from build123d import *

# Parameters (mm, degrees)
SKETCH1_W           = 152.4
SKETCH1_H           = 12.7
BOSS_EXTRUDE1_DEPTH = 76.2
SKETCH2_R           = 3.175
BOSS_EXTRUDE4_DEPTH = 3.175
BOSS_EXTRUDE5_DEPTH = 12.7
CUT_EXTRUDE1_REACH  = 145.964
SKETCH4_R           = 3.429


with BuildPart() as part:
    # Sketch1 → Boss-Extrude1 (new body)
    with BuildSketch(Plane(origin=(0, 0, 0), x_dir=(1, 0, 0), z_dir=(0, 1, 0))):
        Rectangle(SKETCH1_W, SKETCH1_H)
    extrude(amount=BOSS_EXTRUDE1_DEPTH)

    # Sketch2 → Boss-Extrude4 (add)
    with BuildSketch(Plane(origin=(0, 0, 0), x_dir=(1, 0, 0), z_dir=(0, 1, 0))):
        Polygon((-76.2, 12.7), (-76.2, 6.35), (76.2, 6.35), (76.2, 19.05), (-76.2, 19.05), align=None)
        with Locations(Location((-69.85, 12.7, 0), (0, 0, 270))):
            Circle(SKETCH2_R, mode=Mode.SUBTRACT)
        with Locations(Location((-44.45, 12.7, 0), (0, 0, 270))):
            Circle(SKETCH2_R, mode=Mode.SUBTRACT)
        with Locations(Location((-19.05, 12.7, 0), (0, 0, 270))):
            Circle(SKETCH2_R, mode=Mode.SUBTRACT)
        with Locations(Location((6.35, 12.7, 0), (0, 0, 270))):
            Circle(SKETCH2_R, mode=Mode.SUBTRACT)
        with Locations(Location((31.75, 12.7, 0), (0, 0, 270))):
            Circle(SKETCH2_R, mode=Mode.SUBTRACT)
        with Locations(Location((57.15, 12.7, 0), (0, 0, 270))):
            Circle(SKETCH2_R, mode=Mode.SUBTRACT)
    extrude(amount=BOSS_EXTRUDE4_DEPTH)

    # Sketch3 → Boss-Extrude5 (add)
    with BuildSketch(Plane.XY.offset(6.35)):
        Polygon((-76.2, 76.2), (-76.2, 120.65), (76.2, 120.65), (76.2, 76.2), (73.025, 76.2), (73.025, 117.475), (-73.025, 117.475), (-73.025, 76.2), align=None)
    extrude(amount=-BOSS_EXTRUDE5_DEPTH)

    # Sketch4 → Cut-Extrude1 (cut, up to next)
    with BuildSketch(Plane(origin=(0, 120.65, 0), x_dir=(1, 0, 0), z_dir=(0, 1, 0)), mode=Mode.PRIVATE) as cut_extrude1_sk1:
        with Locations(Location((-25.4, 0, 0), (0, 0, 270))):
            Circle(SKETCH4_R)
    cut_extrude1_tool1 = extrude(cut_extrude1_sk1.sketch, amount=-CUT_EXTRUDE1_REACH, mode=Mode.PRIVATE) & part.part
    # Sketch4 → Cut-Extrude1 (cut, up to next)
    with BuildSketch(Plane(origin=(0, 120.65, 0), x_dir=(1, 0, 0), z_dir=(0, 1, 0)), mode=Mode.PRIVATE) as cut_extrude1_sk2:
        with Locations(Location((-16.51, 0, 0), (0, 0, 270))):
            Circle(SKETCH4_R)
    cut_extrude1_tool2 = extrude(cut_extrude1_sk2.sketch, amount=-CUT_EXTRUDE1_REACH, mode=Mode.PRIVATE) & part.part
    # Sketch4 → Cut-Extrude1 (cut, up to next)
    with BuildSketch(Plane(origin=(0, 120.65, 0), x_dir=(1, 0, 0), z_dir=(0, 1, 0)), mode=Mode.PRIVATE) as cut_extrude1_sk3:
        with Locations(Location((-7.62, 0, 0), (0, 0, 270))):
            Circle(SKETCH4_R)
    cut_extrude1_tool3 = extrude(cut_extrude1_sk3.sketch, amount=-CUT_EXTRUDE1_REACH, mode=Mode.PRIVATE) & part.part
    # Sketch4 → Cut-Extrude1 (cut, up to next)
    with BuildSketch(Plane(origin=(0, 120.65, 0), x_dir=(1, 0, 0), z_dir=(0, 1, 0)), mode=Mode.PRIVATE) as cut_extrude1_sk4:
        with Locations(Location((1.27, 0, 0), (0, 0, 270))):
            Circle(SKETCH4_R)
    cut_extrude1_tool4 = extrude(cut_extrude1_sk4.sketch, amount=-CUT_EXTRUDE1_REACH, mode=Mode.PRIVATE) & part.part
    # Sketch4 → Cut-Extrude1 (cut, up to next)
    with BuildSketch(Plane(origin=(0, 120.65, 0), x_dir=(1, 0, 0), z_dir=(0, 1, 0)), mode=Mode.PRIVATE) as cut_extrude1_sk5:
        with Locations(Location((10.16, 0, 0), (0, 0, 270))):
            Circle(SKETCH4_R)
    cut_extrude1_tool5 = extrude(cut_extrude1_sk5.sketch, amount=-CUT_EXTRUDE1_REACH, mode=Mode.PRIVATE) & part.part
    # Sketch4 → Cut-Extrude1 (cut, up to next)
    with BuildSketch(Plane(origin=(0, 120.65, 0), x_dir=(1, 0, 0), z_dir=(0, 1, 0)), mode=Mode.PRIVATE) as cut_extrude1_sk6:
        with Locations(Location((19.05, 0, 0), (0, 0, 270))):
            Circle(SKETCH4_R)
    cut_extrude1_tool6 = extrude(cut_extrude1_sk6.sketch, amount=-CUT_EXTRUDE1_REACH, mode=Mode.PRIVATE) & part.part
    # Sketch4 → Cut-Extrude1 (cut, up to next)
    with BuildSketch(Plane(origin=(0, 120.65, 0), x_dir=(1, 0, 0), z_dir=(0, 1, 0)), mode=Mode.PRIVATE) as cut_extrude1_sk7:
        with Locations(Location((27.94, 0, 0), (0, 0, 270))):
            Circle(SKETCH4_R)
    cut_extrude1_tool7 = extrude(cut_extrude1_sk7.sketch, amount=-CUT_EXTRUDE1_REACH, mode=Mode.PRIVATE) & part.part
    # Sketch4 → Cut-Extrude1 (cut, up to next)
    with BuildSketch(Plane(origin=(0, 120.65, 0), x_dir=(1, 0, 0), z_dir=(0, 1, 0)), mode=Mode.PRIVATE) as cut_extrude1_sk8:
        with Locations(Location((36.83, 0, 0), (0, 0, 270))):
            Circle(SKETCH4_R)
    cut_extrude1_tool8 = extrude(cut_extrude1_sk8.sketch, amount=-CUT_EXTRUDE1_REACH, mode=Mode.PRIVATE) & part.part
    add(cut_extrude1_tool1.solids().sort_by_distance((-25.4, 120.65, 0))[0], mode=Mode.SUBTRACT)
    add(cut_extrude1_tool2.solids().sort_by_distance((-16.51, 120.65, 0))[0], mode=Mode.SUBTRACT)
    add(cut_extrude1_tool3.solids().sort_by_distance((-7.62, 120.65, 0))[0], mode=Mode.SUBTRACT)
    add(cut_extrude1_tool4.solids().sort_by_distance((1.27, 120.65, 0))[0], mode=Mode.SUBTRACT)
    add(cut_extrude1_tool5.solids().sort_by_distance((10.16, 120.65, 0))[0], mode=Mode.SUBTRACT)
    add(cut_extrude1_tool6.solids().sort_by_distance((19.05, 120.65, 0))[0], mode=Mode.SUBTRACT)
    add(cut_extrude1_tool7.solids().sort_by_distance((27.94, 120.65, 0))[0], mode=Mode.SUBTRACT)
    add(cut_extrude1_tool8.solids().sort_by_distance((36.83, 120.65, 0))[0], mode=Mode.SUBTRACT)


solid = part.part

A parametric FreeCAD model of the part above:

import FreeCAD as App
import Part
import Sketcher
from FreeCAD import Vector
Q = App.Units.Quantity


def add_polygon(sketch, points):
    """Adds a closed chain of lines whose ends are joined by coincident constraints."""
    first, n = sketch.GeometryCount, len(points)
    for a, b in zip(points, points[1:] + points[:1]):
        sketch.addGeometry(Part.LineSegment(App.Vector(*a, 0), App.Vector(*b, 0)), False)
    for i in range(n):
        sketch.addConstraint(Sketcher.Constraint("Coincident", first + i, 2, first + (i + 1) % n, 1))

doc = App.newDocument("Part")
body = doc.addObject("PartDesign::Body", "Body")

sketch1 = body.newObject("Sketcher::SketchObject", "Sketch")
sketch1.AttachmentSupport = (doc.getObject("XZ_Plane"), [""])
sketch1.MapMode = "FlatFace"
add_polygon(sketch1, [(-76, -6), (-76, 6), (76, 6), (76, -6)])
sketch1.addConstraint([
    Sketcher.Constraint("Vertical", 0),
    Sketcher.Constraint("Horizontal", 1),
    Sketcher.Constraint("Vertical", 2),
    Sketcher.Constraint("Horizontal", 3),
    Sketcher.Constraint("Symmetric", 0, 2, 2, 2, -1, 1),
    Sketcher.Constraint("DistanceX", 1, 1, 1, 2, Q("6 in")),
    Sketcher.Constraint("DistanceY", 0, 1, 0, 2, Q("0.5 in")),
])
pad1 = body.newObject("PartDesign::Pad", "Pad")
pad1.Profile = sketch1
pad1.Length = Q("3 in")
pad1.Reversed = True

sketch2 = body.newObject("Sketcher::SketchObject", "Sketch001")
sketch2.AttachmentSupport = (doc.getObject("XZ_Plane"), [""])
sketch2.MapMode = "FlatFace"
add_polygon(sketch2, [(-76.2, -6.3), (76.2, -6.3), (76.2, -19.1), (-76.2, -19.1)])
sketch2.addGeometry(Part.Circle(Vector(-69.8, -12.7, 0), Vector(0, 0, 1), 3.2), False)
sketch2.addGeometry(Part.Circle(Vector(-44.5, -12.7, 0), Vector(0, 0, 1), 3.2), False)
sketch2.addGeometry(Part.Circle(Vector(-19.1, -12.7, 0), Vector(0, 0, 1), 3.2), False)
sketch2.addGeometry(Part.Circle(Vector(6.3, -12.7, 0), Vector(0, 0, 1), 3.2), False)
sketch2.addGeometry(Part.Circle(Vector(31.8, -12.7, 0), Vector(0, 0, 1), 3.2), False)
sketch2.addGeometry(Part.Circle(Vector(57.1, -12.7, 0), Vector(0, 0, 1), 3.2), False)
sketch2.addConstraint([
    Sketcher.Constraint("Horizontal", 0),
    Sketcher.Constraint("Vertical", 1),
    Sketcher.Constraint("Horizontal", 2),
    Sketcher.Constraint("Vertical", 3),
    Sketcher.Constraint("Equal", 4, 5),
    Sketcher.Constraint("Equal", 5, 6),
    Sketcher.Constraint("Equal", 6, 7),
    Sketcher.Constraint("Equal", 7, 8),
    Sketcher.Constraint("Equal", 8, 9),
    Sketcher.Constraint("Horizontal", 4, 3, 5, 3),
    Sketcher.Constraint("Horizontal", 5, 3, 6, 3),
    Sketcher.Constraint("Horizontal", 6, 3, 7, 3),
    Sketcher.Constraint("Horizontal", 7, 3, 8, 3),
    Sketcher.Constraint("Horizontal", 8, 3, 9, 3),
    Sketcher.Constraint("Diameter", 4, Q("0.25 in")),
    Sketcher.Constraint("DistanceX", 0, 1, 0, 2, Q("6 in")),
    Sketcher.Constraint("DistanceY", 1, 2, 1, 1, Q("0.5 in")),
    Sketcher.Constraint("DistanceX", -1, 1, 0, 2, Q("3 in")),
    Sketcher.Constraint("DistanceX", 4, 3, 5, 3, Q("1 in")),
    Sketcher.Constraint("DistanceX", 5, 3, 6, 3, Q("1 in")),
    Sketcher.Constraint("DistanceX", 6, 3, 7, 3, Q("1 in")),
    Sketcher.Constraint("DistanceX", 7, 3, 8, 3, Q("1 in")),
    Sketcher.Constraint("DistanceX", 8, 3, 9, 3, Q("1 in")),
    Sketcher.Constraint("DistanceY", 4, 3, -1, 1, Q("0.5 in")),
    Sketcher.Constraint("DistanceX", 4, 3, -1, 1, Q("2.75 in")),
    Sketcher.Constraint("DistanceY", 0, 2, -1, 1, Q("0.25 in")),
])
pad2 = body.newObject("PartDesign::Pad", "Pad001")
pad2.Profile = sketch2
pad2.Length = Q("0.125 in")
pad2.Reversed = True

sketch3 = body.newObject("Sketcher::SketchObject", "Sketch002")
sketch3.AttachmentSupport = (doc.getObject("XY_Plane"), [""])
sketch3.MapMode = "FlatFace"
sketch3.AttachmentOffset = App.Placement(Vector(0, 0, 0.25 * 25.4), App.Rotation())
add_polygon(sketch3, [(-76.2, 120.7), (-76.2, 76.2), (-73, 76.2), (-73, 117.5), (73, 117.5), (73, 76.2), (76.2, 76.2), (76.2, 120.7)])
sketch3.addConstraint([
    Sketcher.Constraint("Vertical", 0),
    Sketcher.Constraint("Horizontal", 1),
    Sketcher.Constraint("Vertical", 2),
    Sketcher.Constraint("Horizontal", 3),
    Sketcher.Constraint("Vertical", 4),
    Sketcher.Constraint("Horizontal", 5),
    Sketcher.Constraint("Vertical", 6),
    Sketcher.Constraint("Horizontal", 7),
    Sketcher.Constraint("Symmetric", 1, 2, 4, 2, -2),
    Sketcher.Constraint("Equal", 1, 5),
    Sketcher.Constraint("DistanceX", 7, 2, 7, 1, Q("6 in")),
    Sketcher.Constraint("DistanceY", -1, 1, 0, 2, Q("3 in")),
    Sketcher.Constraint("DistanceX", 3, 1, 3, 2, Q("5.75 in")),
    Sketcher.Constraint("DistanceY", 0, 2, 0, 1, Q("1.75 in")),
    Sketcher.Constraint("DistanceY", 2, 1, 2, 2, Q("1.625 in")),
])
pad3 = body.newObject("PartDesign::Pad", "Pad002")
pad3.Profile = sketch3
pad3.Length = Q("0.5 in")
pad3.Reversed = True

sketch4 = body.newObject("Sketcher::SketchObject", "Sketch003")
sketch4.AttachmentSupport = (doc.getObject("XZ_Plane"), [""])
sketch4.MapMode = "FlatFace"
sketch4.AttachmentOffset = App.Placement(Vector(0, 0, -4.75 * 25.4), App.Rotation())
sketch4.addGeometry(Part.Circle(Vector(-25.4, 0, 0), Vector(0, 0, 1), 3.4), False)
sketch4.addConstraint([
    Sketcher.Constraint("PointOnObject", 0, 3, -1),
    Sketcher.Constraint("Diameter", 0, Q("0.27 in")),
    Sketcher.Constraint("DistanceX", 0, 3, -1, 1, Q("1 in")),
])
pocket1 = body.newObject("PartDesign::Pocket", "Pocket")
pocket1.Profile = sketch4
pocket1.Type = "UpToFirst"
pocket1.Reversed = True

sketch5 = body.newObject("Sketcher::SketchObject", "Sketch004")
sketch5.AttachmentSupport = (doc.getObject("XZ_Plane"), [""])
sketch5.MapMode = "FlatFace"
sketch5.AttachmentOffset = App.Placement(Vector(0, 0, -4.75 * 25.4), App.Rotation())
sketch5.addGeometry(Part.Circle(Vector(-16.5, 0, 0), Vector(0, 0, 1), 3.4), False)
sketch5.addConstraint([
    Sketcher.Constraint("PointOnObject", 0, 3, -1),
    Sketcher.Constraint("Diameter", 0, Q("0.27 in")),
    Sketcher.Constraint("DistanceX", 0, 3, -1, 1, Q("0.65 in")),
])
pocket2 = body.newObject("PartDesign::Pocket", "Pocket001")
pocket2.Profile = sketch5
pocket2.Type = "UpToFirst"
pocket2.Reversed = True

sketch6 = body.newObject("Sketcher::SketchObject", "Sketch005")
sketch6.AttachmentSupport = (doc.getObject("XZ_Plane"), [""])
sketch6.MapMode = "FlatFace"
sketch6.AttachmentOffset = App.Placement(Vector(0, 0, -4.75 * 25.4), App.Rotation())
sketch6.addGeometry(Part.Circle(Vector(-7.6, 0, 0), Vector(0, 0, 1), 3.4), False)
sketch6.addConstraint([
    Sketcher.Constraint("PointOnObject", 0, 3, -1),
    Sketcher.Constraint("Diameter", 0, Q("0.27 in")),
    Sketcher.Constraint("DistanceX", 0, 3, -1, 1, Q("0.3 in")),
])
pocket3 = body.newObject("PartDesign::Pocket", "Pocket002")
pocket3.Profile = sketch6
pocket3.Type = "UpToFirst"
pocket3.Reversed = True

sketch7 = body.newObject("Sketcher::SketchObject", "Sketch006")
sketch7.AttachmentSupport = (doc.getObject("XZ_Plane"), [""])
sketch7.MapMode = "FlatFace"
sketch7.AttachmentOffset = App.Placement(Vector(0, 0, -4.75 * 25.4), App.Rotation())
sketch7.addGeometry(Part.Circle(Vector(1.3, 0, 0), Vector(0, 0, 1), 3.4), False)
sketch7.addConstraint([
    Sketcher.Constraint("PointOnObject", 0, 3, -1),
    Sketcher.Constraint("Diameter", 0, Q("0.27 in")),
    Sketcher.Constraint("DistanceX", -1, 1, 0, 3, Q("0.05 in")),
])
pocket4 = body.newObject("PartDesign::Pocket", "Pocket003")
pocket4.Profile = sketch7
pocket4.Type = "UpToFirst"
pocket4.Reversed = True

sketch8 = body.newObject("Sketcher::SketchObject", "Sketch007")
sketch8.AttachmentSupport = (doc.getObject("XZ_Plane"), [""])
sketch8.MapMode = "FlatFace"
sketch8.AttachmentOffset = App.Placement(Vector(0, 0, -4.75 * 25.4), App.Rotation())
sketch8.addGeometry(Part.Circle(Vector(10.2, 0, 0), Vector(0, 0, 1), 3.4), False)
sketch8.addConstraint([
    Sketcher.Constraint("PointOnObject", 0, 3, -1),
    Sketcher.Constraint("Diameter", 0, Q("0.27 in")),
    Sketcher.Constraint("DistanceX", -1, 1, 0, 3, Q("0.4 in")),
])
pocket5 = body.newObject("PartDesign::Pocket", "Pocket004")
pocket5.Profile = sketch8
pocket5.Type = "UpToFirst"
pocket5.Reversed = True

sketch9 = body.newObject("Sketcher::SketchObject", "Sketch008")
sketch9.AttachmentSupport = (doc.getObject("XZ_Plane"), [""])
sketch9.MapMode = "FlatFace"
sketch9.AttachmentOffset = App.Placement(Vector(0, 0, -4.75 * 25.4), App.Rotation())
sketch9.addGeometry(Part.Circle(Vector(19.1, 0, 0), Vector(0, 0, 1), 3.4), False)
sketch9.addConstraint([
    Sketcher.Constraint("PointOnObject", 0, 3, -1),
    Sketcher.Constraint("Diameter", 0, Q("0.27 in")),
    Sketcher.Constraint("DistanceX", -1, 1, 0, 3, Q("0.75 in")),
])
pocket6 = body.newObject("PartDesign::Pocket", "Pocket005")
pocket6.Profile = sketch9
pocket6.Type = "UpToFirst"
pocket6.Reversed = True

sketch10 = body.newObject("Sketcher::SketchObject", "Sketch009")
sketch10.AttachmentSupport = (doc.getObject("XZ_Plane"), [""])
sketch10.MapMode = "FlatFace"
sketch10.AttachmentOffset = App.Placement(Vector(0, 0, -4.75 * 25.4), App.Rotation())
sketch10.addGeometry(Part.Circle(Vector(27.9, 0, 0), Vector(0, 0, 1), 3.4), False)
sketch10.addConstraint([
    Sketcher.Constraint("PointOnObject", 0, 3, -1),
    Sketcher.Constraint("Diameter", 0, Q("0.27 in")),
    Sketcher.Constraint("DistanceX", -1, 1, 0, 3, Q("1.1 in")),
])
pocket7 = body.newObject("PartDesign::Pocket", "Pocket006")
pocket7.Profile = sketch10
pocket7.Type = "UpToFirst"
pocket7.Reversed = True

sketch11 = body.newObject("Sketcher::SketchObject", "Sketch010")
sketch11.AttachmentSupport = (doc.getObject("XZ_Plane"), [""])
sketch11.MapMode = "FlatFace"
sketch11.AttachmentOffset = App.Placement(Vector(0, 0, -4.75 * 25.4), App.Rotation())
sketch11.addGeometry(Part.Circle(Vector(36.8, 0, 0), Vector(0, 0, 1), 3.4), False)
sketch11.addConstraint([
    Sketcher.Constraint("PointOnObject", 0, 3, -1),
    Sketcher.Constraint("Diameter", 0, Q("0.27 in")),
    Sketcher.Constraint("DistanceX", -1, 1, 0, 3, Q("1.45 in")),
])
pocket8 = body.newObject("PartDesign::Pocket", "Pocket007")
pocket8.Profile = sketch11
pocket8.Type = "UpToFirst"
pocket8.Reversed = True

doc.recompute()
